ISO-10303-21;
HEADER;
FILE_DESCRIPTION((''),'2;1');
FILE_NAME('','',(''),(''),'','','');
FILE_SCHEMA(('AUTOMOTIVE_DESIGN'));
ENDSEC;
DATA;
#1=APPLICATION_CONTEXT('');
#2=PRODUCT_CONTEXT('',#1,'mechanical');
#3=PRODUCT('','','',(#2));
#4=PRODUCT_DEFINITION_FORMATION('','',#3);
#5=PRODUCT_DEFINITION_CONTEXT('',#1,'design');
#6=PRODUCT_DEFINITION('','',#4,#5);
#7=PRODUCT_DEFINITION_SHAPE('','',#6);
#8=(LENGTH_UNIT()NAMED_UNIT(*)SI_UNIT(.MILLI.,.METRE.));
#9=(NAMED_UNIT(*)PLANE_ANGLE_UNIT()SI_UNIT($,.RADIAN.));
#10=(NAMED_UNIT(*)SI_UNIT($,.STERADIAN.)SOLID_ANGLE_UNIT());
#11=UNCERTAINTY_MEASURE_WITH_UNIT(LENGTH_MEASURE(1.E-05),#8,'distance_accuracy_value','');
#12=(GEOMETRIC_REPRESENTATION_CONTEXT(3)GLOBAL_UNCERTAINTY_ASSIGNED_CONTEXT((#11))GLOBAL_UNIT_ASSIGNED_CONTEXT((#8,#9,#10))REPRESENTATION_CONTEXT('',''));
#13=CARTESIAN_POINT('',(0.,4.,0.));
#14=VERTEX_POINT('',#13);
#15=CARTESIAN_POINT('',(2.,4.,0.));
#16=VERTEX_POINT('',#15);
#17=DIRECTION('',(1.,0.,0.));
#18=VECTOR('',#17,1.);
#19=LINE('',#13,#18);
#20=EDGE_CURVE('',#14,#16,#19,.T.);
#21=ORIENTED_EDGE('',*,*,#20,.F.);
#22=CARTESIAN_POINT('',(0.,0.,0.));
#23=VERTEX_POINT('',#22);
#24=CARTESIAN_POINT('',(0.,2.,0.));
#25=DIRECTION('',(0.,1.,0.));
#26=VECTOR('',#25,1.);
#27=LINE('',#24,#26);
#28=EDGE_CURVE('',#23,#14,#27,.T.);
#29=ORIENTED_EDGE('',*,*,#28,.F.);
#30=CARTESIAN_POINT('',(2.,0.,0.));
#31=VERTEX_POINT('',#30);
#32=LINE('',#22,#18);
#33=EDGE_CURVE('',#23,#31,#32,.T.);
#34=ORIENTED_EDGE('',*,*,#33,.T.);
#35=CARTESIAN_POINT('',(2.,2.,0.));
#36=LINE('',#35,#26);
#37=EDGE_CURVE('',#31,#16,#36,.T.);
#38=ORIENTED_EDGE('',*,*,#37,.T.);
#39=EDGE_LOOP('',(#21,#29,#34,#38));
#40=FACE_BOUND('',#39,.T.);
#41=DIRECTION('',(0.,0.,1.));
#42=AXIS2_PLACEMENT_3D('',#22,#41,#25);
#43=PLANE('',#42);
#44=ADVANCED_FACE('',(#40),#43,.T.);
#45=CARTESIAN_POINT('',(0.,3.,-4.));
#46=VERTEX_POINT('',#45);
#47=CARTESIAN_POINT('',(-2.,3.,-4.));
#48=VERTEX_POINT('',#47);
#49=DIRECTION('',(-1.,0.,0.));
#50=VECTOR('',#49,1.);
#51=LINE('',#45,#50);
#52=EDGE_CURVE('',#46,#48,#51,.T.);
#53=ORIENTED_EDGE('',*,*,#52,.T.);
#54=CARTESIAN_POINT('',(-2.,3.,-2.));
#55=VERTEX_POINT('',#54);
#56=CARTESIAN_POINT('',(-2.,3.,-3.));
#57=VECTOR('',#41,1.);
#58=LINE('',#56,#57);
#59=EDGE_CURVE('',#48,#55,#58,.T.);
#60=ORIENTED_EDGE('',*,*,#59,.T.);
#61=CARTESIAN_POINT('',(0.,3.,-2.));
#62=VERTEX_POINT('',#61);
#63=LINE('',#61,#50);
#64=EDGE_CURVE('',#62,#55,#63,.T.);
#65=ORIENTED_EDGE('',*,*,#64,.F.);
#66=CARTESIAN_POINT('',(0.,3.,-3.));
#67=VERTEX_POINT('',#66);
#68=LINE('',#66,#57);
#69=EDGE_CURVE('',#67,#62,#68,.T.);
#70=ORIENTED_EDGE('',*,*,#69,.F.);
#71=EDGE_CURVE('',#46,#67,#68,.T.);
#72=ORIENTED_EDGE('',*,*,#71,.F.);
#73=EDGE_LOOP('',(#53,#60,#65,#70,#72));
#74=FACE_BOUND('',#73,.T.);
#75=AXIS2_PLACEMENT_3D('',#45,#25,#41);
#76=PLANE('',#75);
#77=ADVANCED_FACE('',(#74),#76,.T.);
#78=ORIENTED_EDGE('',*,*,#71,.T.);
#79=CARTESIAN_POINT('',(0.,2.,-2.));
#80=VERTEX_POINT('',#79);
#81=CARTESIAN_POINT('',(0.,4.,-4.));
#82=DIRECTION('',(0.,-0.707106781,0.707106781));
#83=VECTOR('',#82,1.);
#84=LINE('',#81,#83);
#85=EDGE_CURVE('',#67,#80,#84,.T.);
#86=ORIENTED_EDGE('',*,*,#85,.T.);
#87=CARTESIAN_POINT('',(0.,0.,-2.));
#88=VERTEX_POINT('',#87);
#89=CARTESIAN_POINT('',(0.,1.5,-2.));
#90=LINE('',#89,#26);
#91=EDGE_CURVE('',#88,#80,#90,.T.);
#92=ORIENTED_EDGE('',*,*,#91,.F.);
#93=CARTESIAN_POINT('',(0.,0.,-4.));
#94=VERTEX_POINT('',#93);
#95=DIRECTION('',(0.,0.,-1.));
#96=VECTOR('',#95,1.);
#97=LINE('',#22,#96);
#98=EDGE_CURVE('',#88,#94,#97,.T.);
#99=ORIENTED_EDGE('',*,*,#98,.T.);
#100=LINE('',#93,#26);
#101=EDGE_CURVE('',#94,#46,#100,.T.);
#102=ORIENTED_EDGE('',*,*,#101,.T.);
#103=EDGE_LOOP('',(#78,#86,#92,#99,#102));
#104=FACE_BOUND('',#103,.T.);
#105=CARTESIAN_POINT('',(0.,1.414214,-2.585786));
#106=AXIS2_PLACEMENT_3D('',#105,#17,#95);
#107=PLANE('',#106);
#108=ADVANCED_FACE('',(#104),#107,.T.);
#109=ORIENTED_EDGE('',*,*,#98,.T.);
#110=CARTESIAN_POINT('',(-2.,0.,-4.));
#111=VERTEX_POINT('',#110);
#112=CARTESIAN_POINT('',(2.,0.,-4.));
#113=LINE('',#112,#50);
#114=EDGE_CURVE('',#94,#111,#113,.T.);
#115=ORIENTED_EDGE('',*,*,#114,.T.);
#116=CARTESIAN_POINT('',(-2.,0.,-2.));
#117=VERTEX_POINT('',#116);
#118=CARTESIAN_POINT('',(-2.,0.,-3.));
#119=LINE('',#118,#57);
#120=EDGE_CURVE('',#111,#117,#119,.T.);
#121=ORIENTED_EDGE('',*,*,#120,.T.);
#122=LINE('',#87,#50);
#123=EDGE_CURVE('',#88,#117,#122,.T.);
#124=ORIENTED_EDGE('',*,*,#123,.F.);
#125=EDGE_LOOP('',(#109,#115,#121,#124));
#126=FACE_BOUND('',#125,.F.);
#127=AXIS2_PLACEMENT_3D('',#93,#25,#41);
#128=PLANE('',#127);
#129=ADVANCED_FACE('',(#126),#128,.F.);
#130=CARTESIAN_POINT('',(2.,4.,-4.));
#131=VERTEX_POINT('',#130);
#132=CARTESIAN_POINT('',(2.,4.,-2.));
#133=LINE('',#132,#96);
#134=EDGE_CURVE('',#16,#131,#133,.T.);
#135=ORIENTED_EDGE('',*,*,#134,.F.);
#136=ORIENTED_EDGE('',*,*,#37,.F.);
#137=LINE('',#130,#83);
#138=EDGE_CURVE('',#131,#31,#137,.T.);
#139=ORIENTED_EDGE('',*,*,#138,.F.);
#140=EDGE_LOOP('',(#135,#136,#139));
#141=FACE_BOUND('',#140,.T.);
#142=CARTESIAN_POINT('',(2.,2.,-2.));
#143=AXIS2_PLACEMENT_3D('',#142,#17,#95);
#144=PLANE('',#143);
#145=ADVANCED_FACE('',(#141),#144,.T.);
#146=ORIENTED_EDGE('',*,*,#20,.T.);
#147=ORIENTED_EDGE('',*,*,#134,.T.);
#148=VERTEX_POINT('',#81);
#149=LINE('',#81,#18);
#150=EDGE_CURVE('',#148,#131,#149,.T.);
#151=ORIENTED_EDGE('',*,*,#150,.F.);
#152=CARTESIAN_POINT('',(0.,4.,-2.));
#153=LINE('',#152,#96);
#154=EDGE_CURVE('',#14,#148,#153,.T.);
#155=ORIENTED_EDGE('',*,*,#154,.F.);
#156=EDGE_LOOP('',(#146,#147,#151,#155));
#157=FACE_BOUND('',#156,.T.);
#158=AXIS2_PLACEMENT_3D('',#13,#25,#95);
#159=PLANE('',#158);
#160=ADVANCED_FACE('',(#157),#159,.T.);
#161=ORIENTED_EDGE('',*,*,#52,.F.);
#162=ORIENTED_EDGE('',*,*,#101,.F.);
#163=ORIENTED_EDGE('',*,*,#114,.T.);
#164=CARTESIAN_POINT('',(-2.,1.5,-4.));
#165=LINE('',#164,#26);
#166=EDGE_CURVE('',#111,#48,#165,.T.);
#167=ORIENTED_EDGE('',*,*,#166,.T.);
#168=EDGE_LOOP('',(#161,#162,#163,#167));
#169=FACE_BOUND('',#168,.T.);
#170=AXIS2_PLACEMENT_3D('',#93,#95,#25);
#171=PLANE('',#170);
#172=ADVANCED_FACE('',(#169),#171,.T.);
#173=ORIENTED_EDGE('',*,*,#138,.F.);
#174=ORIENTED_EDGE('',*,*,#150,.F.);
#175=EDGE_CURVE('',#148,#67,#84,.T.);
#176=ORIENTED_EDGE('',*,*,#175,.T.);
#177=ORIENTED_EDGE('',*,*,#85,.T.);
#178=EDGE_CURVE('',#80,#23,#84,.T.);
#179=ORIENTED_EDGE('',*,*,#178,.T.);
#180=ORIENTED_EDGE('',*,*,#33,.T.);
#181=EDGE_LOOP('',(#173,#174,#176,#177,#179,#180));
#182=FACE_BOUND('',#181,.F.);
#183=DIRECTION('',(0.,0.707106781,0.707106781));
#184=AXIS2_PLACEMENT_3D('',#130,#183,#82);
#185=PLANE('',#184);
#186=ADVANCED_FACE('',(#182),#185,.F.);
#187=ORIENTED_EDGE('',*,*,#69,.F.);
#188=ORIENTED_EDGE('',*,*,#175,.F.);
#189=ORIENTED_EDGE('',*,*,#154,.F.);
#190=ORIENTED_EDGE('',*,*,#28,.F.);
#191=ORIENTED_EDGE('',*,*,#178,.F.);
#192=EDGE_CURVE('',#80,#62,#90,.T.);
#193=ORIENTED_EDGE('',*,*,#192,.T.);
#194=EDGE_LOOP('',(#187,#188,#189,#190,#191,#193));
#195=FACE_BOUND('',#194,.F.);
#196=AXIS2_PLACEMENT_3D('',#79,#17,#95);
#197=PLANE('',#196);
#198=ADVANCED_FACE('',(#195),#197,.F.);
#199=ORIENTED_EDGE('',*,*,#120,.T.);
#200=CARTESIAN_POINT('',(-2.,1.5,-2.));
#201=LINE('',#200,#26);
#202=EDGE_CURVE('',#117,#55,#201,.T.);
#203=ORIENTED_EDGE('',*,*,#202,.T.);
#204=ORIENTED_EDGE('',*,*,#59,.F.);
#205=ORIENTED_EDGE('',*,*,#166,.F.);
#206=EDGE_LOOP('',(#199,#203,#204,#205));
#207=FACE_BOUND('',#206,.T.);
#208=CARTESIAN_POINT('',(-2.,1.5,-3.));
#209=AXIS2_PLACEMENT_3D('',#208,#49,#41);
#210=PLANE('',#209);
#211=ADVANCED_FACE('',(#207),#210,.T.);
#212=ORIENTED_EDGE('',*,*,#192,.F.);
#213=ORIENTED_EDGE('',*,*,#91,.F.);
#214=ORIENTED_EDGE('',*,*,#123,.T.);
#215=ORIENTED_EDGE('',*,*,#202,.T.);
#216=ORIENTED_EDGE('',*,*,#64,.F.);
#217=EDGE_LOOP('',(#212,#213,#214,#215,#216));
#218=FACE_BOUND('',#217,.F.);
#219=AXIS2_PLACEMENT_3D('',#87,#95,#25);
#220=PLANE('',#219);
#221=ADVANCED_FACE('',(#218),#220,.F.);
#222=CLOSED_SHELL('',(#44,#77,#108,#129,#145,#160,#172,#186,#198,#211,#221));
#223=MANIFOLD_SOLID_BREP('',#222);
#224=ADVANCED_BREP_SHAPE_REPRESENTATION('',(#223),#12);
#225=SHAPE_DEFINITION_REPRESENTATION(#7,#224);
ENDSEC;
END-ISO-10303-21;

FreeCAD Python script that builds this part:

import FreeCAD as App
import Part
import Sketcher

V = App.Vector


def add_polygon(sketch, points):
    """Adds a closed chain of lines whose ends are joined by coincident constraints."""
    first, n = sketch.GeometryCount, len(points)
    for a, b in zip(points, points[1:] + points[:1]):
        sketch.addGeometry(Part.LineSegment(App.Vector(*a, 0), App.Vector(*b, 0)), False)
    for i in range(n):
        sketch.addConstraint(Sketcher.Constraint("Coincident", first + i, 2, first + (i + 1) % n, 1))

doc = App.newDocument("Part")
body = doc.addObject("PartDesign::Body", "Body")

sketch1 = body.newObject("Sketcher::SketchObject", "Sketch")
sketch1.AttachmentSupport = (doc.getObject("YZ_Plane"), [""])
sketch1.MapMode = "FlatFace"
add_polygon(sketch1, [(4, 0), (0, 0), (0, -4), (4, -4)])
sketch1.addConstraint([
    Sketcher.Constraint("Horizontal", 0),
    Sketcher.Constraint("Vertical", 1),
    Sketcher.Constraint("Horizontal", 2),
    Sketcher.Constraint("Vertical", 3),
    Sketcher.Constraint("Coincident", 0, 2, -1, 1),
    Sketcher.Constraint("Equal", 2, 1),
    Sketcher.Constraint("DistanceX", 0, 2, 0, 1, 4.0),
])
pad1 = body.newObject("PartDesign::Pad", "Pad")
pad1.Profile = sketch1
pad1.Length = 2

sketch2 = body.newObject("Sketcher::SketchObject", "Sketch001")
sketch2.AttachmentSupport = (doc.getObject("YZ_Plane"), [""])
sketch2.MapMode = "FlatFace"
add_polygon(sketch2, [(3, -4), (0, -4), (0, -2), (3, -2)])
sketch2.addConstraint([
    Sketcher.Constraint("Horizontal", 0),
    Sketcher.Constraint("Vertical", 1),
    Sketcher.Constraint("Horizontal", 2),
    Sketcher.Constraint("Vertical", 3),
    Sketcher.Constraint("PointOnObject", 0, 2, -2),
    Sketcher.Constraint("DistanceX", 0, 2, 0, 1, 3.0),
    Sketcher.Constraint("DistanceY", 1, 1, 1, 2, 2.0),
    Sketcher.Constraint("DistanceY", 0, 2, -1, 1, 4.0),
])
pad2 = body.newObject("PartDesign::Pad", "Pad001")
pad2.Profile = sketch2
pad2.Length = 2
pad2.Reversed = True

sketch3 = body.newObject("Sketcher::SketchObject", "Sketch002")
sketch3.AttachmentSupport = (doc.getObject("YZ_Plane"), [""])
sketch3.MapMode = "FlatFace"
sketch3.AttachmentOffset = App.Placement(V(0, 0, 2), App.Rotation())
add_polygon(sketch3, [(4, -4), (0, 0), (0, -4)])
sketch3.addConstraint([
    Sketcher.Constraint("Vertical", 1),
    Sketcher.Constraint("Horizontal", 2),
    Sketcher.Constraint("Coincident", 0, 2, -1, 1),
    Sketcher.Constraint("Equal", 2, 1),
    Sketcher.Constraint("DistanceX", 2, 1, 2, 2, 4.0),
])
pocket1 = body.newObject("PartDesign::Pocket", "Pocket")
pocket1.Profile = sketch3
pocket1.Length = 2

doc.recompute()
